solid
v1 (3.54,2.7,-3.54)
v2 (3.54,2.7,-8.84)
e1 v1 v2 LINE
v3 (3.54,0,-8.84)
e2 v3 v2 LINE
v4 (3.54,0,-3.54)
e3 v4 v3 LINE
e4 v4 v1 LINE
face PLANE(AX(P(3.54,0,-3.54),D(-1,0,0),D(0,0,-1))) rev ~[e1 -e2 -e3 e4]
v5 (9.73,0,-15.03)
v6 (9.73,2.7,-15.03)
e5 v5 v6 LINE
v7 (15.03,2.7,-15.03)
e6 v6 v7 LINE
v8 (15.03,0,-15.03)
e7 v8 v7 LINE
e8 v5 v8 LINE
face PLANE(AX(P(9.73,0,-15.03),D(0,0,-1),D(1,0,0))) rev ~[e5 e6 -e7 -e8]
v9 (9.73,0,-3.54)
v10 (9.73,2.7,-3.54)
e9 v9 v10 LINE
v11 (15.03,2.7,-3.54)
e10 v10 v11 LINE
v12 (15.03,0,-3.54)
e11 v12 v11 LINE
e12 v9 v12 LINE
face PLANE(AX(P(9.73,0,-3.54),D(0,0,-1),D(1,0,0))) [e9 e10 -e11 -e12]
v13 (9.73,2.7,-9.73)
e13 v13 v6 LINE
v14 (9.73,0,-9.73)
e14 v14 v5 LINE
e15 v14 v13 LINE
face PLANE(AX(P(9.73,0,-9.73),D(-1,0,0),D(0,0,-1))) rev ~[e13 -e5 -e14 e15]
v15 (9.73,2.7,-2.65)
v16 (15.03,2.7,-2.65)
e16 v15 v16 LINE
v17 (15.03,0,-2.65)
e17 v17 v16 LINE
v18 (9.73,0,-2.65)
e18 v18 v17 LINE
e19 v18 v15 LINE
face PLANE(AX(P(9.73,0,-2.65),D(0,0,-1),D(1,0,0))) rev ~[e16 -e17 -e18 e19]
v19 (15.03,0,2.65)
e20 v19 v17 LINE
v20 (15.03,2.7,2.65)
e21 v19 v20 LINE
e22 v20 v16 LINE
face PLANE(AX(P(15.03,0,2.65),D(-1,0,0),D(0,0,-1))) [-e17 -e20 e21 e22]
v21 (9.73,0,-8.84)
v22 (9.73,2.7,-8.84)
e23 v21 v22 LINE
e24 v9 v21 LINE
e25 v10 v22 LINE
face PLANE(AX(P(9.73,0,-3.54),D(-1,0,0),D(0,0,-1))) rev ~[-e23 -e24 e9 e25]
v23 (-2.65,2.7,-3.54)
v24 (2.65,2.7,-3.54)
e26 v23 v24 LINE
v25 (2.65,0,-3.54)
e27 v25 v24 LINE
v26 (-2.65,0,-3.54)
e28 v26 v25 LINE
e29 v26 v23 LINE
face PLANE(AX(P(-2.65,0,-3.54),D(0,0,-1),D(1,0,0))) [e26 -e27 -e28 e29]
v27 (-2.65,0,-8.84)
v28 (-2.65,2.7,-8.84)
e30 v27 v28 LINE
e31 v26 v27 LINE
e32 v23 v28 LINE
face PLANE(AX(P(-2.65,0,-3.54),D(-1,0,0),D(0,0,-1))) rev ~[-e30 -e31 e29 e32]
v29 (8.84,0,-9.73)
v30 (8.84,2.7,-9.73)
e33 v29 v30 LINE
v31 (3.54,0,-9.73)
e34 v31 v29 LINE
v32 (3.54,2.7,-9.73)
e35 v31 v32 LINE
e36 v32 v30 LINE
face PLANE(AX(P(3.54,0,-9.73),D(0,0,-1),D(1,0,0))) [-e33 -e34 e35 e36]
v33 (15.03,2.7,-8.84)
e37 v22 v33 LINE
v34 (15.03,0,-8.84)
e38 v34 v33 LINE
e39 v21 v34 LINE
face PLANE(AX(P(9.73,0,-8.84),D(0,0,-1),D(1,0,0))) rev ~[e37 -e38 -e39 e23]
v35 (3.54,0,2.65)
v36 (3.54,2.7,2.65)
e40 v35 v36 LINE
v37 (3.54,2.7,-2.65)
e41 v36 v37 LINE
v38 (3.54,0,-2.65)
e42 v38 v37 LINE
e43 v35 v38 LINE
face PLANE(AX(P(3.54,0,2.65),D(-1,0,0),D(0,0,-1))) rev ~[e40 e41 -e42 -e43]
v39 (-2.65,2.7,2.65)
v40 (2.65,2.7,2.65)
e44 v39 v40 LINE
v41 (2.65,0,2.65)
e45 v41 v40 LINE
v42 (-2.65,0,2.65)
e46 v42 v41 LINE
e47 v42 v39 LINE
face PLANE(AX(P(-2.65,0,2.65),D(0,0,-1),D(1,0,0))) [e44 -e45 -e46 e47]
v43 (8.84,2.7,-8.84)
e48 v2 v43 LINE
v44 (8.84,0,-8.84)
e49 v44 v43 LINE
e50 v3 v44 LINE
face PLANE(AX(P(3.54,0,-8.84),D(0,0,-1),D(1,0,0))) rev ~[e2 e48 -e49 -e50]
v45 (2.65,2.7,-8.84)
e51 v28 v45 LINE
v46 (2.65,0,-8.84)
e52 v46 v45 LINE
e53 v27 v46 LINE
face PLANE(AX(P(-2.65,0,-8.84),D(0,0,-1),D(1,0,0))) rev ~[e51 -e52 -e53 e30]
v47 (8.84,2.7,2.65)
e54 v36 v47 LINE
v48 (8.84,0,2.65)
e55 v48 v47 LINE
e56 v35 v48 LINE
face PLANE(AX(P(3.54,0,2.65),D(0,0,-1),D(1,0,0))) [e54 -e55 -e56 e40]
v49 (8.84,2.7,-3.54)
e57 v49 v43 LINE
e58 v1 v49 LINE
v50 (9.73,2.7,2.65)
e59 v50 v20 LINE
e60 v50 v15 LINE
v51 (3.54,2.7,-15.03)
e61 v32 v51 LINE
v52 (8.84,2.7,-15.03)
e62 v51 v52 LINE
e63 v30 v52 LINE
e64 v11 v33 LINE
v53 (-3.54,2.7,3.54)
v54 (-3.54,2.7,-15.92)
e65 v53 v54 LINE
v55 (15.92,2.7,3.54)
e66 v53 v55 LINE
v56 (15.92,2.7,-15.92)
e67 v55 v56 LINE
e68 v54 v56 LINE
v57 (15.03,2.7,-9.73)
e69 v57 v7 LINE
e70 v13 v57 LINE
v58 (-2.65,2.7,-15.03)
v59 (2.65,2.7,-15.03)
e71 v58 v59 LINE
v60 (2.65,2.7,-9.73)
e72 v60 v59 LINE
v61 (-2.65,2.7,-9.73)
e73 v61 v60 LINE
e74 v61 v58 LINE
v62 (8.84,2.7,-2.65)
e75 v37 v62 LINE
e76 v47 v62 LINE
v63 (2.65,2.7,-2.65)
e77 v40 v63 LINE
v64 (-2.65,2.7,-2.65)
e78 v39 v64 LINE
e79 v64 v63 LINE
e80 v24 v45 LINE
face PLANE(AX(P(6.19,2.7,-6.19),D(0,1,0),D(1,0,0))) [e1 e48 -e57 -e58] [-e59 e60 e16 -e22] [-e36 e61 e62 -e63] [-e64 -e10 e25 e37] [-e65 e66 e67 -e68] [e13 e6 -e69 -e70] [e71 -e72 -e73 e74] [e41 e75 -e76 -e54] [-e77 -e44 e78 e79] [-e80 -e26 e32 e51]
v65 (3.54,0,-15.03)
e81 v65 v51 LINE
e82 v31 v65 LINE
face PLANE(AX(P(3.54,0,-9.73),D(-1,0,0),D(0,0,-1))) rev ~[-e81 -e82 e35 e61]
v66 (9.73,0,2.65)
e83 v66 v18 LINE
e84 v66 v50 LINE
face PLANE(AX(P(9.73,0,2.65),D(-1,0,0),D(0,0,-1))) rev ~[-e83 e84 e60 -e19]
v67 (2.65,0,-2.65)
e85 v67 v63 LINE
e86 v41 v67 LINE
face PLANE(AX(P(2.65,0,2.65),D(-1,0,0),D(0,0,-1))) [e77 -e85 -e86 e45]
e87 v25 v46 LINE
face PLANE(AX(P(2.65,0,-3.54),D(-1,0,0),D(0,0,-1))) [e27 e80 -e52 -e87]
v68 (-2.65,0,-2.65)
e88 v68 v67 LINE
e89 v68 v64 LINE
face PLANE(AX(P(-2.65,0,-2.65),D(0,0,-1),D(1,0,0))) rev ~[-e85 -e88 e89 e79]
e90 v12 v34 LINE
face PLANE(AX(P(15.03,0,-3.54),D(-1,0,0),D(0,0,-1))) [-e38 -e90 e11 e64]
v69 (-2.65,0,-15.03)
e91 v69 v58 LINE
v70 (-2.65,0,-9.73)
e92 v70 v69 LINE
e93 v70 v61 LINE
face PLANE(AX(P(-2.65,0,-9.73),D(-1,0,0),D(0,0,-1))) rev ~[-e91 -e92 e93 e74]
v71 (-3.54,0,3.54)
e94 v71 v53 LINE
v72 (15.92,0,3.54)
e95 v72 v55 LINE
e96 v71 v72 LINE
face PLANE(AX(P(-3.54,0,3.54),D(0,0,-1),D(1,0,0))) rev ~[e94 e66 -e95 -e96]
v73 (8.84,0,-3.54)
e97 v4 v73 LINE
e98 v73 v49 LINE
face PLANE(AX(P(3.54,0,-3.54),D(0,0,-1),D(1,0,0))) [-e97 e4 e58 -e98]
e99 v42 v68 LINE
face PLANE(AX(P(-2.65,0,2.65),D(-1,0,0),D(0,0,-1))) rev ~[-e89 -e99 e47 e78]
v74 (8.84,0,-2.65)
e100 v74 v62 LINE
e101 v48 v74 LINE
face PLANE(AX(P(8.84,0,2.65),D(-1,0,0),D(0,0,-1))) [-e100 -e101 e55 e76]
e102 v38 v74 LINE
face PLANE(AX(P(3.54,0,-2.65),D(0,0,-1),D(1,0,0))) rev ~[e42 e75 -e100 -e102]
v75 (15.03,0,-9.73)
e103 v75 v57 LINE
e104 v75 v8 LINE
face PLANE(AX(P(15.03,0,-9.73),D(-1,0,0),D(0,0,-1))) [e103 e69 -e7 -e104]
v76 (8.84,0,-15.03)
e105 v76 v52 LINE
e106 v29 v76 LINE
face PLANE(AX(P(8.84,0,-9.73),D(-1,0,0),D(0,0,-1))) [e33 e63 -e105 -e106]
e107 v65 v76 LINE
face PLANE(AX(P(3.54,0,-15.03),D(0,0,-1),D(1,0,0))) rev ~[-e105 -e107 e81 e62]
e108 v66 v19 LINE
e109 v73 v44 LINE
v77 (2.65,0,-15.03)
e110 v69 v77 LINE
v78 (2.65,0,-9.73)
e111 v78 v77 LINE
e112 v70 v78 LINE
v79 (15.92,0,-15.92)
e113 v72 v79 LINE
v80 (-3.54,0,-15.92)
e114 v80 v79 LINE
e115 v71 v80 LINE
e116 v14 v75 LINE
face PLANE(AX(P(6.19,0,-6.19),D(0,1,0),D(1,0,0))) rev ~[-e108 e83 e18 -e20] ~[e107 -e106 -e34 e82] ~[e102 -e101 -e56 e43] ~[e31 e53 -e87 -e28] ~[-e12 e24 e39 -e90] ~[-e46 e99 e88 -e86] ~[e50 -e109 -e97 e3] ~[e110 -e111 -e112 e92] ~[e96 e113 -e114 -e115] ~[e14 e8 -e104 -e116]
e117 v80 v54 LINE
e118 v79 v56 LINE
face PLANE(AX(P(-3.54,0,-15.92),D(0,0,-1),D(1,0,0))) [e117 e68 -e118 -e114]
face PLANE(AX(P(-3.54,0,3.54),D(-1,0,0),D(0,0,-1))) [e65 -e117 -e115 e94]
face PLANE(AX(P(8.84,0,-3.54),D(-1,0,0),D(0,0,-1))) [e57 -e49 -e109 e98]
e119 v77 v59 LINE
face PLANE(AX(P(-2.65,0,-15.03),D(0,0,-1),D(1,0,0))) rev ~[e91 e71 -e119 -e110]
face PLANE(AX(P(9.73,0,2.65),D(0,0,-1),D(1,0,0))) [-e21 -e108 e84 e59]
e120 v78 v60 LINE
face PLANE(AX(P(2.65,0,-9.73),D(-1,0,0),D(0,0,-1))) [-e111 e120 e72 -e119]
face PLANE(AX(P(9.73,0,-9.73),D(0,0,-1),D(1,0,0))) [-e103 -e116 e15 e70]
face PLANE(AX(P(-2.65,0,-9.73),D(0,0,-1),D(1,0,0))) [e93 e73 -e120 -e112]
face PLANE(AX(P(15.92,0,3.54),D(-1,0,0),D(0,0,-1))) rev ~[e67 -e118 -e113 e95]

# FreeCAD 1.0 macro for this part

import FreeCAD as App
import Part
import Sketcher
from FreeCAD import Vector
Q = App.Units.Quantity


def add_polygon(sketch, points):
    """Adds a closed chain of lines whose ends are joined by coincident constraints."""
    first, n = sketch.GeometryCount, len(points)
    for a, b in zip(points, points[1:] + points[:1]):
        sketch.addGeometry(Part.LineSegment(App.Vector(*a, 0), App.Vector(*b, 0)), False)
    for i in range(n):
        sketch.addConstraint(Sketcher.Constraint("Coincident", first + i, 2, first + (i + 1) % n, 1))

doc = App.newDocument("Part")
body = doc.addObject("PartDesign::Body", "Body")

sketch1 = body.newObject("Sketcher::SketchObject", "Sketch")
sketch1.AttachmentSupport = (doc.getObject("XZ_Plane"), [""])
sketch1.MapMode = "FlatFace"
add_polygon(sketch1, [(-3.54, -15.92), (-3.54, 3.54), (15.92, 3.54), (15.92, -15.92)])
add_polygon(sketch1, [(2.65, 2.65), (-2.65, 2.65), (-2.65, -2.65), (2.65, -2.65)])
add_polygon(sketch1, [(8.84, 2.65), (3.54, 2.65), (3.54, -2.65), (8.84, -2.65)])
add_polygon(sketch1, [(15.03, 2.65), (9.73, 2.65), (9.73, -2.65), (15.03, -2.65)])
add_polygon(sketch1, [(2.65, -3.54), (-2.65, -3.54), (-2.65, -8.84), (2.65, -8.84)])
add_polygon(sketch1, [(2.65, -9.73), (-2.65, -9.73), (-2.65, -15.03), (2.65, -15.03)])
add_polygon(sketch1, [(8.84, -3.54), (3.54, -3.54), (3.54, -8.84), (8.84, -8.84)])
add_polygon(sketch1, [(15.03, -3.54), (9.73, -3.54), (9.73, -8.84), (15.03, -8.84)])
add_polygon(sketch1, [(8.84, -9.73), (3.54, -9.73), (3.54, -15.03), (8.84, -15.03)])
add_polygon(sketch1, [(15.03, -9.73), (9.73, -9.73), (9.73, -15.03), (15.03, -15.03)])
sketch1.addConstraint([
    Sketcher.Constraint("Vertical", 0),
    Sketcher.Constraint("Horizontal", 1),
    Sketcher.Constraint("Vertical", 2),
    Sketcher.Constraint("Horizontal", 3),
    Sketcher.Constraint("Horizontal", 4),
    Sketcher.Constraint("Vertical", 5),
    Sketcher.Constraint("Horizontal", 6),
    Sketcher.Constraint("Vertical", 7),
    Sketcher.Constraint("Horizontal", 8),
    Sketcher.Constraint("Vertical", 9),
    Sketcher.Constraint("Horizontal", 10),
    Sketcher.Constraint("Vertical", 11),
    Sketcher.Constraint("Horizontal", 12),
    Sketcher.Constraint("Vertical", 13),
    Sketcher.Constraint("Horizontal", 14),
    Sketcher.Constraint("Vertical", 15),
    Sketcher.Constraint("Horizontal", 16),
    Sketcher.Constraint("Vertical", 17),
    Sketcher.Constraint("Horizontal", 18),
    Sketcher.Constraint("Vertical", 19),
    Sketcher.Constraint("Horizontal", 20),
    Sketcher.Constraint("Vertical", 21),
    Sketcher.Constraint("Horizontal", 22),
    Sketcher.Constraint("Vertical", 23),
    Sketcher.Constraint("Horizontal", 24),
    Sketcher.Constraint("Vertical", 25),
    Sketcher.Constraint("Horizontal", 26),
    Sketcher.Constraint("Vertical", 27),
    Sketcher.Constraint("Horizontal", 28),
    Sketcher.Constraint("Vertical", 29),
    Sketcher.Constraint("Horizontal", 30),
    Sketcher.Constraint("Vertical", 31),
    Sketcher.Constraint("Horizontal", 32),
    Sketcher.Constraint("Vertical", 33),
    Sketcher.Constraint("Horizontal", 34),
    Sketcher.Constraint("Vertical", 35),
    Sketcher.Constraint("Horizontal", 36),
    Sketcher.Constraint("Vertical", 37),
    Sketcher.Constraint("Horizontal", 38),
    Sketcher.Constraint("Vertical", 39),
    Sketcher.Constraint("Symmetric", 4, 2, 6, 2, -1, 1),
    Sketcher.Constraint("Symmetric", 0, 2, 24, 2, -1, 1),
    Sketcher.Constraint("Horizontal", 7, 2, 8, 2),
    Sketcher.Constraint("Horizontal", 6, 2, 9, 2),
    Sketcher.Constraint("Horizontal", 11, 2, 12, 2),
    Sketcher.Constraint("Horizontal", 10, 2, 13, 2),
    Sketcher.Constraint("Horizontal", 19, 2, 24, 2),
    Sketcher.Constraint("Horizontal", 18, 2, 25, 2),
    Sketcher.Constraint("Horizontal", 27, 2, 28, 2),
    Sketcher.Constraint("Horizontal", 26, 2, 29, 2),
    Sketcher.Constraint("Horizontal", 23, 2, 32, 2),
    Sketcher.Constraint("Horizontal", 22, 2, 33, 2),
    Sketcher.Constraint("Horizontal", 35, 2, 36, 2),
    Sketcher.Constraint("Horizontal", 34, 2, 37, 2),
    Sketcher.Constraint("Vertical", 5, 2, 16, 2),
    Sketcher.Constraint("Vertical", 7, 2, 18, 2),
    Sketcher.Constraint("Vertical", 17, 2, 20, 2),
    Sketcher.Constraint("Vertical", 19, 2, 22, 2),
    Sketcher.Constraint("Vertical", 9, 2, 24, 2),
    Sketcher.Constraint("Vertical", 11, 2, 26, 2),
    Sketcher.Constraint("Vertical", 13, 2, 28, 2),
    Sketcher.Constraint("Vertical", 15, 2, 30, 2),
    Sketcher.Constraint("Vertical", 25, 2, 32, 2),
    Sketcher.Constraint("Vertical", 27, 2, 34, 2),
    Sketcher.Constraint("Vertical", 29, 2, 36, 2),
    Sketcher.Constraint("Vertical", 31, 2, 38, 2),
    Sketcher.Constraint("Equal", 6, 8),
    Sketcher.Constraint("Equal", 10, 12),
    Sketcher.Constraint("Equal", 3, 0),
    Sketcher.Constraint("Equal", 38, 5),
    Sketcher.Constraint("Equal", 15, 17),
    Sketcher.Constraint("Equal", 19, 21),
    Sketcher.Constraint("DistanceX", 4, 2, 4, 1, Q("5.3 mm")),
    Sketcher.Constraint("DistanceX", 1, 1, 1, 2, Q("19.46 mm")),
    Sketcher.Constraint("DistanceX", 0, 2, -1, 1, Q("3.54 mm")),
    Sketcher.Constraint("DistanceY", -1, 1, 0, 2, Q("3.54 mm")),
    Sketcher.Constraint("DistanceX", -1, 1, 12, 2, Q("9.73 mm")),
    Sketcher.Constraint("DistanceY", 20, 2, -1, 1, Q("9.73 mm")),
])
pad1 = body.newObject("PartDesign::Pad", "Pad")
pad1.Profile = sketch1
pad1.Length = 2.7
pad1.Reversed = True

doc.recompute()
